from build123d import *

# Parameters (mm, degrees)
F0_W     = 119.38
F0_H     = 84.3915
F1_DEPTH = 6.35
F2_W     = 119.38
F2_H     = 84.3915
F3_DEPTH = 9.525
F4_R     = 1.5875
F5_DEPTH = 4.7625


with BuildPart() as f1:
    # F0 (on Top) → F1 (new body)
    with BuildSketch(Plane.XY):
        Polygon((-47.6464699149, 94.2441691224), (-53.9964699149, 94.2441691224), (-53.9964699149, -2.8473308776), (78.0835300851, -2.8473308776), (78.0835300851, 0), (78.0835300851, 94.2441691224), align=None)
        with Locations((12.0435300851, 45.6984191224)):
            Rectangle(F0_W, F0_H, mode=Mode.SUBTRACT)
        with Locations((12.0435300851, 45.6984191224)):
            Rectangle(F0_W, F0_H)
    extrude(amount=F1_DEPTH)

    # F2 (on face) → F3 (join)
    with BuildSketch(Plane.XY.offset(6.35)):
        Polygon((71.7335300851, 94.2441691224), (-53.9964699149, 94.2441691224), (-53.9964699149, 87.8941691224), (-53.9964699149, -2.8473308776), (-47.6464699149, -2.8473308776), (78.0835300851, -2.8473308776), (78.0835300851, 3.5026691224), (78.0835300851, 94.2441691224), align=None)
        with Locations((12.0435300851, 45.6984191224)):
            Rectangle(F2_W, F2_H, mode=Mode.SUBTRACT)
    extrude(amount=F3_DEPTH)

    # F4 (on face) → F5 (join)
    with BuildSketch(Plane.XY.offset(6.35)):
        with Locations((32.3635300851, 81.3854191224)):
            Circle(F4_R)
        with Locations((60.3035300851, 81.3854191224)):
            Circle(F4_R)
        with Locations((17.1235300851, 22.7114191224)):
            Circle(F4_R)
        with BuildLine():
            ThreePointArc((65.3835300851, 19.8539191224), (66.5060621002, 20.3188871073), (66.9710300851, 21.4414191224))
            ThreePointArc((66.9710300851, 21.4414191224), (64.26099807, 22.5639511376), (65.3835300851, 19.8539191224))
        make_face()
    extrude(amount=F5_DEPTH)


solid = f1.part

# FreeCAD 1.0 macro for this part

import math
import FreeCAD as App
import Part
import Sketcher
from FreeCAD import Vector
Q = App.Units.Quantity

doc = App.newDocument("Part")
params = doc.addObject("Spreadsheet::Sheet", "Params")
for row, (alias, value) in enumerate([
    ("sketch1_width", "5.2 in"),
    ("pad1_length", "0.25 in"),
    ("sketch2_width", "5.2 in"),
    ("sketch2_width2", "4.7 in"),
    ("pad2_length", "0.375 in"),
    ("sketch3_diameter", "0.125 in"),
    ("pad3_length", "0.1875 in"),
], start=1):
    params.set(f"A{row}", alias)
    params.set(f"B{row}", "=" + value)
    params.setAlias(f"B{row}", alias)

body = doc.addObject("PartDesign::Body", "Body")

sketch1 = body.newObject("Sketcher::SketchObject", "Sketch")
sketch1.AttachmentSupport = (doc.getObject("XY_Plane"), [""])
sketch1.MapMode = "FlatFace"
sketch1.addGeometry([
    Part.LineSegment(Vector(-54, 94, 0), Vector(-54, -3, 0)),
    Part.LineSegment(Vector(-54, -3, 0), Vector(78, -3, 0)),
    Part.LineSegment(Vector(78, -3, 0), Vector(78, 94, 0)),
    Part.LineSegment(Vector(78, 94, 0), Vector(-54, 94, 0)),
], False)
sketch1.addConstraint([
    Sketcher.Constraint("Coincident", 0, 2, 1, 1),
    Sketcher.Constraint("Coincident", 1, 2, 2, 1),
    Sketcher.Constraint("Coincident", 2, 2, 3, 1),
    Sketcher.Constraint("Coincident", 3, 2, 0, 1),
    Sketcher.Constraint("Vertical", 0),
    Sketcher.Constraint("Horizontal", 1),
    Sketcher.Constraint("Vertical", 2),
    Sketcher.Constraint("Horizontal", 3),
    Sketcher.Constraint("DistanceX", 1, 1, 1, 2, Q("5.2 in")),
    Sketcher.Constraint("DistanceY", 0, 2, 0, 1, Q("3.8225 in")),
    Sketcher.Constraint("DistanceX", 0, 2, -1, 1, Q("53.99647 mm")),
    Sketcher.Constraint("DistanceY", 0, 2, -1, 1, Q("2.847331 mm")),
])
sketch1.setExpression("Constraints[8]", "Params.sketch1_width")
pad1 = body.newObject("PartDesign::Pad", "Pad")
pad1.Profile = sketch1
pad1.setExpression("Length", "Params.pad1_length")

sketch2 = body.newObject("Sketcher::SketchObject", "Sketch001")
sketch2.AttachmentSupport = (doc.getObject("XY_Plane"), [""])
sketch2.MapMode = "FlatFace"
sketch2.AttachmentOffset = App.Placement(Vector(0, 0, 0.25 * 25.4), App.Rotation())
sketch2.addGeometry([
    Part.LineSegment(Vector(-54, 94, 0), Vector(-54, -3, 0)),
    Part.LineSegment(Vector(-54, -3, 0), Vector(78, -3, 0)),
    Part.LineSegment(Vector(78, -3, 0), Vector(78, 94, 0)),
    Part.LineSegment(Vector(78, 94, 0), Vector(-54, 94, 0)),
    Part.LineSegment(Vector(72, 4, 0), Vector(-48, 4, 0)),
    Part.LineSegment(Vector(-48, 4, 0), Vector(-48, 88, 0)),
    Part.LineSegment(Vector(-48, 88, 0), Vector(72, 88, 0)),
    Part.LineSegment(Vector(72, 88, 0), Vector(72, 4, 0)),
], False)
sketch2.addConstraint([
    Sketcher.Constraint("Coincident", 0, 2, 1, 1),
    Sketcher.Constraint("Coincident", 1, 2, 2, 1),
    Sketcher.Constraint("Coincident", 2, 2, 3, 1),
    Sketcher.Constraint("Coincident", 3, 2, 0, 1),
    Sketcher.Constraint("Coincident", 4, 2, 5, 1),
    Sketcher.Constraint("Coincident", 5, 2, 6, 1),
    Sketcher.Constraint("Coincident", 6, 2, 7, 1),
    Sketcher.Constraint("Coincident", 7, 2, 4, 1),
    Sketcher.Constraint("Vertical", 0),
    Sketcher.Constraint("Horizontal", 1),
    Sketcher.Constraint("Vertical", 2),
    Sketcher.Constraint("Horizontal", 3),
    Sketcher.Constraint("Horizontal", 4),
    Sketcher.Constraint("Vertical", 5),
    Sketcher.Constraint("Horizontal", 6),
    Sketcher.Constraint("Vertical", 7),
    Sketcher.Constraint("DistanceX", 1, 1, 1, 2, Q("5.2 in")),
    Sketcher.Constraint("DistanceX", 4, 2, 4, 1, Q("4.7 in")),
    Sketcher.Constraint("DistanceX", 0, 2, 4, 2, Q("0.25 in")),
    Sketcher.Constraint("DistanceY", 0, 2, 4, 2, Q("0.25 in")),
    Sketcher.Constraint("DistanceY", 5, 2, 3, 2, Q("0.25 in")),
    Sketcher.Constraint("DistanceY", 0, 2, 0, 1, Q("3.8225 in")),
    Sketcher.Constraint("DistanceX", 0, 2, -1, 1, Q("53.99647 mm")),
    Sketcher.Constraint("DistanceY", 0, 2, -1, 1, Q("2.847331 mm")),
])
sketch2.setExpression("Constraints[16]", "Params.sketch2_width")
sketch2.setExpression("Constraints[17]", "Params.sketch2_width2")
pad2 = body.newObject("PartDesign::Pad", "Pad001")
pad2.Profile = sketch2
pad2.setExpression("Length", "Params.pad2_length")

sketch3 = body.newObject("Sketcher::SketchObject", "Sketch002")
sketch3.AttachmentSupport = (doc.getObject("XY_Plane"), [""])
sketch3.MapMode = "FlatFace"
sketch3.AttachmentOffset = App.Placement(Vector(0, 0, 0.25 * 25.4), App.Rotation())
sketch3.addGeometry([
    Part.Circle(Vector(32.4, 81.4, 0), Vector(0, 0, 1), 1.6),
    Part.Circle(Vector(60.3, 81.4, 0), Vector(0, 0, 1), 1.6),
    Part.Circle(Vector(17.1, 22.7, 0), Vector(0, 0, 1), 1.6),
    Part.ArcOfCircle(Part.Circle(Vector(65.4, 21.4, 0), Vector(0, 0, 1), 1.6), math.radians(-90), math.radians(0)),
    Part.ArcOfCircle(Part.Circle(Vector(65.4, 21.4, 0), Vector(0, 0, 1), 1.6), math.radians(0), math.radians(270)),
], False)
sketch3.addConstraint([
    Sketcher.Constraint("Tangent", 3, 1, 4, 2),
    Sketcher.Constraint("Coincident", 4, 1, 3, 2),
    Sketcher.Constraint("Equal", 0, 1),
    Sketcher.Constraint("Equal", 1, 2),
    Sketcher.Constraint("Equal", 2, 3),
    Sketcher.Constraint("Horizontal", 0, 3, 1, 3),
    Sketcher.Constraint("Horizontal", 3, 3, 4, 1),
    Sketcher.Constraint("Vertical", 4, 3, 3, 1),
    Sketcher.Constraint("Diameter", 0, Q("0.125 in")),
    Sketcher.Constraint("DistanceX", 0, 3, 1, 3, Q("1.1 in")),
    Sketcher.Constraint("DistanceX", 2, 3, 0, 3, Q("0.6 in")),
    Sketcher.Constraint("DistanceX", 2, 3, 3, 3, Q("1.9 in")),
    Sketcher.Constraint("DistanceY", 2, 3, 0, 3, Q("2.31 in")),
    Sketcher.Constraint("DistanceY", 3, 3, 2, 3, Q("0.05 in")),
    Sketcher.Constraint("DistanceX", -1, 1, 0, 3, Q("32.36353 mm")),
    Sketcher.Constraint("DistanceY", -1, 1, 0, 3, Q("81.385419 mm")),
])
sketch3.setExpression("Constraints[8]", "Params.sketch3_diameter")
pad3 = body.newObject("PartDesign::Pad", "Pad002")
pad3.Profile = sketch3
pad3.setExpression("Length", "Params.pad3_length")

doc.recompute()
